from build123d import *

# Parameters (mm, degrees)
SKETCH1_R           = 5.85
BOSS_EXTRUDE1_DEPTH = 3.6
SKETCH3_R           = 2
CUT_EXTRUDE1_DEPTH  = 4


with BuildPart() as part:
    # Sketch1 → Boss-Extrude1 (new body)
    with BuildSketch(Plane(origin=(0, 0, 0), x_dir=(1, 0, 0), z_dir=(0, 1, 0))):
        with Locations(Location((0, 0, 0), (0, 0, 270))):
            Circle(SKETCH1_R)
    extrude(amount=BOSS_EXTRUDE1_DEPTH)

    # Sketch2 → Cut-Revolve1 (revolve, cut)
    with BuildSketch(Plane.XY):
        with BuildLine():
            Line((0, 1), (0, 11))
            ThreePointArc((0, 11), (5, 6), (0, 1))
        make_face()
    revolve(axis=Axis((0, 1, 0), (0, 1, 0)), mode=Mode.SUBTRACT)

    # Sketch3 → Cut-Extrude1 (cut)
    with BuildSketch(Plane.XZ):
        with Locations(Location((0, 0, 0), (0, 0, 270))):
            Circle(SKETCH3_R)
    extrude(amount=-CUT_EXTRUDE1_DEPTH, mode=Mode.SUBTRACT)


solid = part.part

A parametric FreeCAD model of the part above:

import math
import FreeCAD as App
import Part
import Sketcher

doc = App.newDocument("Part")
body = doc.addObject("PartDesign::Body", "Body")

# Sketch on XZ plane
sketch1 = doc.addObject("Sketcher::SketchObject", "Sketch")
body.addObject(sketch1)
sketch1.AttachmentSupport = (doc.XZ_Plane, [""])
sketch1.MapMode = "FlatFace"
sketch1.addGeometry(Part.Circle(App.Vector(0, 0, 0), App.Vector(0, 0, 1), 6), False)
sketch1.addConstraint(Sketcher.Constraint("Coincident", 0, 3, -1, 1))
sketch1.addConstraint(Sketcher.Constraint("Diameter", 0, 11.7))
pad1 = doc.addObject("PartDesign::Pad", "Pad")
body.addObject(pad1)
pad1.Profile = sketch1
pad1.Length = 3.6
pad1.Reversed = True

# Sketch on XY plane
sketch2 = doc.addObject("Sketcher::SketchObject", "Sketch001")
body.addObject(sketch2)
sketch2.AttachmentSupport = (doc.XY_Plane, [""])
sketch2.MapMode = "FlatFace"
sketch2.addGeometry(Part.LineSegment(App.Vector(0, 11, 0), App.Vector(0, 1, 0)), False)
sketch2.addGeometry(Part.ArcOfCircle(Part.Circle(App.Vector(0, 6, 0), App.Vector(0, 0, 1), 5), math.radians(-90), math.radians(90)), False)
sketch2.addConstraint(Sketcher.Constraint("Coincident", 0, 1, 1, 2))
sketch2.addConstraint(Sketcher.Constraint("Coincident", 1, 1, 0, 2))
sketch2.addConstraint(Sketcher.Constraint("Vertical", 0))
sketch2.addConstraint(Sketcher.Constraint("PointOnObject", 1, 3, -2))
sketch2.addConstraint(Sketcher.Constraint("PointOnObject", 0, 1, -2))
sketch2.addConstraint(Sketcher.Constraint("Radius", 1, 5.0))
sketch2.addConstraint(Sketcher.Constraint("DistanceY", -1, 1, 1, 3, 6.0))
groove = doc.addObject("PartDesign::Groove", "Groove")
body.addObject(groove)
groove.Profile = sketch2
groove.ReferenceAxis = (sketch2, ["V_Axis"])
groove.Angle = 360

# Sketch on XZ plane
sketch3 = doc.addObject("Sketcher::SketchObject", "Sketch002")
body.addObject(sketch3)
sketch3.AttachmentSupport = (doc.XZ_Plane, [""])
sketch3.MapMode = "FlatFace"
sketch3.addGeometry(Part.Circle(App.Vector(0, 0, 0), App.Vector(0, 0, 1), 2), False)
sketch3.addConstraint(Sketcher.Constraint("Coincident", 0, 3, -1, 1))
sketch3.addConstraint(Sketcher.Constraint("Diameter", 0, 4.0))
pocket1 = doc.addObject("PartDesign::Pocket", "Pocket")
body.addObject(pocket1)
pocket1.Profile = sketch3
pocket1.Length = 4

doc.recompute()
